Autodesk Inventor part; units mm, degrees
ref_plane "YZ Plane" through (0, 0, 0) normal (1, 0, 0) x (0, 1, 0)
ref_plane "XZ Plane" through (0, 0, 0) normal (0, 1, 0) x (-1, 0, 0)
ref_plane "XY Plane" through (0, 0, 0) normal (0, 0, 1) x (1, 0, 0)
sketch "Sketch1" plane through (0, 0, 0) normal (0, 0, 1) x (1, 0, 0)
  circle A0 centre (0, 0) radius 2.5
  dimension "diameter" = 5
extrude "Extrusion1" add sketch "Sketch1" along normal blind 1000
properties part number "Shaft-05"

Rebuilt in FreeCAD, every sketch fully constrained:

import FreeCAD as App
import Part
import Sketcher

V = App.Vector

doc = App.newDocument("Part")
body = doc.addObject("PartDesign::Body", "Body")

# Sketch on XY plane
sketch1 = body.newObject("Sketcher::SketchObject", "Sketch")
sketch1.AttachmentSupport = (doc.getObject("XY_Plane"), [""])
sketch1.MapMode = "FlatFace"
sketch1.addGeometry(Part.Circle(V(0, 0, 0), V(0, 0, 1), 2.5), False)
sketch1.addConstraint(Sketcher.Constraint("Coincident", 0, 3, -1, 1))
sketch1.addConstraint(Sketcher.Constraint("Diameter", 0, 5.0))
pad1 = body.newObject("PartDesign::Pad", "Pad")
pad1.Profile = sketch1
pad1.Length = 1000

doc.recompute()
